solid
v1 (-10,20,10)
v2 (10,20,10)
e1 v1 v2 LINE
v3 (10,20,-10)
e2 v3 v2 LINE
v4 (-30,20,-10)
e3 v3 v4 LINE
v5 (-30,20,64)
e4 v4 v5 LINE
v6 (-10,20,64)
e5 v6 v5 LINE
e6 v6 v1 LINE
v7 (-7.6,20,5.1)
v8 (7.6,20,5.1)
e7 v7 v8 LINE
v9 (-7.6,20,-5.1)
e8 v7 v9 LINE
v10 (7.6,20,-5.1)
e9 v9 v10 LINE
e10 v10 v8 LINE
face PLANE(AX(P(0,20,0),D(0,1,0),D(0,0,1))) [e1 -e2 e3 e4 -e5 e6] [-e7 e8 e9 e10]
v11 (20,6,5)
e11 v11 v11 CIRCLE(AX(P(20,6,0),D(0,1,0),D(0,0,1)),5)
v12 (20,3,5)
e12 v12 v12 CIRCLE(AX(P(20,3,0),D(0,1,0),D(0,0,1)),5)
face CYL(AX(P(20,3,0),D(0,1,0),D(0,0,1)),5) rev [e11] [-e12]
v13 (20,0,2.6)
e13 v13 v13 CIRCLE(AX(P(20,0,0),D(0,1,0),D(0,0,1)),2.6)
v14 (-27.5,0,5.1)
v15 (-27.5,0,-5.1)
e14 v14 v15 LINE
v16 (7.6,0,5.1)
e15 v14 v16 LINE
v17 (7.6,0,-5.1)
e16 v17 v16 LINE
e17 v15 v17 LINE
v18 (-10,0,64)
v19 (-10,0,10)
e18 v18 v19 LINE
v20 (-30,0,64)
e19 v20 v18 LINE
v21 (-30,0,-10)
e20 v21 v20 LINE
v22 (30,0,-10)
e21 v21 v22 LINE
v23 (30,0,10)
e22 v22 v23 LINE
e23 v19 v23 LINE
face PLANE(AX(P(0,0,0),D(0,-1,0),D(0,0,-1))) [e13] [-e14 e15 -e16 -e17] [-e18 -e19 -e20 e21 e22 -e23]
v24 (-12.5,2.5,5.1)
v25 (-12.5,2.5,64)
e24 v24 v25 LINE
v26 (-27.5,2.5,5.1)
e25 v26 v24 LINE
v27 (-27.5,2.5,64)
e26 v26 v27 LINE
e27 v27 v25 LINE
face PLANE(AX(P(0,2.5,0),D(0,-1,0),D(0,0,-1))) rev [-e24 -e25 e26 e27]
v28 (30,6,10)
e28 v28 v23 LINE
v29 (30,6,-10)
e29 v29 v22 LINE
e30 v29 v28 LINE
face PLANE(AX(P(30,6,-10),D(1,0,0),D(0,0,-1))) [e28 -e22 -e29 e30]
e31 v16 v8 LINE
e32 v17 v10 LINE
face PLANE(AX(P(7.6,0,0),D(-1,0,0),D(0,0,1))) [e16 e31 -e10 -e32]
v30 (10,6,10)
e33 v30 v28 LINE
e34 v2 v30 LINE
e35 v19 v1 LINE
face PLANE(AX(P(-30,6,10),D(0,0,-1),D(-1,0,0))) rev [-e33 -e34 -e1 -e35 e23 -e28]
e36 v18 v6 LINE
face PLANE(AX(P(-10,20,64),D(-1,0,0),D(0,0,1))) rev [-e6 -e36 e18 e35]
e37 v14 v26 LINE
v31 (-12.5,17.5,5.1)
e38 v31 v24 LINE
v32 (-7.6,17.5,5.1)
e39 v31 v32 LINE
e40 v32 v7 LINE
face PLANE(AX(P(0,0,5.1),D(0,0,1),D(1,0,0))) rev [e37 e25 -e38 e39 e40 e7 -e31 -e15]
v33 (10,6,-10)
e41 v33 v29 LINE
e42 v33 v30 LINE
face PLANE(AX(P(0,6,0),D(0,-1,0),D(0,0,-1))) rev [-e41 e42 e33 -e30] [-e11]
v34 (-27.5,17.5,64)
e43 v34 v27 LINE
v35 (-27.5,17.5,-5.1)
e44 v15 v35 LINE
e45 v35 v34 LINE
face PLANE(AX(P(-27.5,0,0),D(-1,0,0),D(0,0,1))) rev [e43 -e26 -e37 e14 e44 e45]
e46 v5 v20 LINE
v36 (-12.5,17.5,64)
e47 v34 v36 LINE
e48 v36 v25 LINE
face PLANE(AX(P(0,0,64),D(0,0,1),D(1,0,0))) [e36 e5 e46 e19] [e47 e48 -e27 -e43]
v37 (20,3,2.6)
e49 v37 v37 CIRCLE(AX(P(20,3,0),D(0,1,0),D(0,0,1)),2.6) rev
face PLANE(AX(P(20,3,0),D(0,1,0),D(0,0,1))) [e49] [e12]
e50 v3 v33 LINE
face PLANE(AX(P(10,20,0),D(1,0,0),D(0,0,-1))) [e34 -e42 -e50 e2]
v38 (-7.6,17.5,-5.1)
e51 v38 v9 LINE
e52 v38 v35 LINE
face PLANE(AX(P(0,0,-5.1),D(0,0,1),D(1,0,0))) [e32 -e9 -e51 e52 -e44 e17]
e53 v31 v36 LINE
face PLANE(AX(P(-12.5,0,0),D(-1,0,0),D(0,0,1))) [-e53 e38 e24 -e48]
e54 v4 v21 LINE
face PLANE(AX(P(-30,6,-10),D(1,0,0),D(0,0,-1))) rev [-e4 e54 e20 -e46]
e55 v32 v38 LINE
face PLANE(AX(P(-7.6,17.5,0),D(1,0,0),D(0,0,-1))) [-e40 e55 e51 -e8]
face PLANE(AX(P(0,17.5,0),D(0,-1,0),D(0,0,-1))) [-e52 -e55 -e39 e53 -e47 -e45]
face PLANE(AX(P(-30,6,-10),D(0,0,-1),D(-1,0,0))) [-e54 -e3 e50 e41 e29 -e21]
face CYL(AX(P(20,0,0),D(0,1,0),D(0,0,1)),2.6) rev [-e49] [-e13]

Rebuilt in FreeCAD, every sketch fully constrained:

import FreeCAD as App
import Part
import Sketcher

V = App.Vector

doc = App.newDocument("Part")
body = doc.addObject("PartDesign::Body", "Body")

sketch1 = body.newObject("Sketcher::SketchObject", "Sketch")
sketch1.AttachmentSupport = (doc.getObject("XZ_Plane"), [""])
sketch1.MapMode = "FlatFace"
sketch1.addGeometry([
    Part.LineSegment(V(-30, -10, 0), V(-30, 10, 0)),
    Part.LineSegment(V(-30, 10, 0), V(30, 10, 0)),
    Part.LineSegment(V(30, 10, 0), V(30, -10, 0)),
    Part.LineSegment(V(30, -10, 0), V(-30, -10, 0)),
], False)
sketch1.addConstraint([
    Sketcher.Constraint("Coincident", 0, 2, 1, 1),
    Sketcher.Constraint("Coincident", 1, 2, 2, 1),
    Sketcher.Constraint("Coincident", 2, 2, 3, 1),
    Sketcher.Constraint("Coincident", 3, 2, 0, 1),
    Sketcher.Constraint("Vertical", 0),
    Sketcher.Constraint("Horizontal", 1),
    Sketcher.Constraint("Vertical", 2),
    Sketcher.Constraint("Horizontal", 3),
    Sketcher.Constraint("Symmetric", 0, 2, 2, 2, -1, 1),
    Sketcher.Constraint("DistanceX", 1, 1, 1, 2, 60.0),
    Sketcher.Constraint("DistanceY", 0, 1, 0, 2, 20.0),
])
pad1 = body.newObject("PartDesign::Pad", "Pad")
pad1.Profile = sketch1
pad1.Length = 6
pad1.Reversed = True

sketch2 = body.newObject("Sketcher::SketchObject", "Sketch001")
sketch2.AttachmentSupport = (doc.getObject("XZ_Plane"), [""])
sketch2.MapMode = "FlatFace"
sketch2.AttachmentOffset = App.Placement(V(0, 0, -6), App.Rotation())
sketch2.addGeometry(Part.Circle(V(20, 0, 0), V(0, 0, 1), 2.6), False)
sketch2.addConstraint([
    Sketcher.Constraint("PointOnObject", 0, 3, -1),
    Sketcher.Constraint("Diameter", 0, 5.2),
    Sketcher.Constraint("DistanceX", -1, 1, 0, 3, 20.0),
])
pocket1 = body.newObject("PartDesign::Pocket", "Pocket")
pocket1.Profile = sketch2
pocket1.Length = 6
pocket1.Reversed = True

sketch3 = body.newObject("Sketcher::SketchObject", "Sketch002")
sketch3.AttachmentSupport = (doc.getObject("XZ_Plane"), [""])
sketch3.MapMode = "FlatFace"
sketch3.AttachmentOffset = App.Placement(V(0, 0, -6), App.Rotation())
sketch3.addGeometry(Part.Circle(V(20, 0, 0), V(0, 0, 1), 5), False)
sketch3.addConstraint([
    Sketcher.Constraint("PointOnObject", 0, 3, -1),
    Sketcher.Constraint("Diameter", 0, 10.0),
    Sketcher.Constraint("DistanceX", -1, 1, 0, 3, 20.0),
])
pocket2 = body.newObject("PartDesign::Pocket", "Pocket001")
pocket2.Profile = sketch3
pocket2.Length = 3
pocket2.Reversed = True

sketch4 = body.newObject("Sketcher::SketchObject", "Sketch003")
sketch4.AttachmentSupport = (doc.getObject("XZ_Plane"), [""])
sketch4.MapMode = "FlatFace"
sketch4.AttachmentOffset = App.Placement(V(0, 0, -6), App.Rotation())
sketch4.addGeometry([
    Part.LineSegment(V(-10, 10, 0), V(10, 10, 0)),
    Part.LineSegment(V(10, 10, 0), V(10, -10, 0)),
    Part.LineSegment(V(10, -10, 0), V(-10, -10, 0)),
    Part.LineSegment(V(-10, -10, 0), V(-10, 10, 0)),
], False)
sketch4.addConstraint([
    Sketcher.Constraint("Coincident", 0, 2, 1, 1),
    Sketcher.Constraint("Coincident", 1, 2, 2, 1),
    Sketcher.Constraint("Coincident", 2, 2, 3, 1),
    Sketcher.Constraint("Coincident", 3, 2, 0, 1),
    Sketcher.Constraint("Horizontal", 0),
    Sketcher.Constraint("Vertical", 1),
    Sketcher.Constraint("Horizontal", 2),
    Sketcher.Constraint("Vertical", 3),
    Sketcher.Constraint("Symmetric", 0, 2, 2, 2, -1, 1),
    Sketcher.Constraint("Equal", 2, 1),
    Sketcher.Constraint("DistanceX", 0, 1, 0, 2, 20.0),
])
pad2 = body.newObject("PartDesign::Pad", "Pad001")
pad2.Profile = sketch4
pad2.Length = 14
pad2.Reversed = True

sketch5 = body.newObject("Sketcher::SketchObject", "Sketch004")
sketch5.AttachmentSupport = (doc.getObject("XZ_Plane"), [""])
sketch5.MapMode = "FlatFace"
sketch5.AttachmentOffset = App.Placement(V(0, 0, -20), App.Rotation())
sketch5.addGeometry([
    Part.LineSegment(V(8, -5, 0), V(-8, -5, 0)),
    Part.LineSegment(V(-8, -5, 0), V(-8, 5, 0)),
    Part.LineSegment(V(-8, 5, 0), V(8, 5, 0)),
    Part.LineSegment(V(8, 5, 0), V(8, -5, 0)),
], False)
sketch5.addConstraint([
    Sketcher.Constraint("Coincident", 0, 2, 1, 1),
    Sketcher.Constraint("Coincident", 1, 2, 2, 1),
    Sketcher.Constraint("Coincident", 2, 2, 3, 1),
    Sketcher.Constraint("Coincident", 3, 2, 0, 1),
    Sketcher.Constraint("Horizontal", 0),
    Sketcher.Constraint("Vertical", 1),
    Sketcher.Constraint("Horizontal", 2),
    Sketcher.Constraint("Vertical", 3),
    Sketcher.Constraint("Symmetric", 0, 2, 2, 2, -1, 1),
    Sketcher.Constraint("DistanceX", 0, 2, 0, 1, 15.2),
    Sketcher.Constraint("DistanceY", 1, 1, 1, 2, 10.2),
])
pocket3 = body.newObject("PartDesign::Pocket", "Pocket002")
pocket3.Profile = sketch5
pocket3.Length = 20
pocket3.Reversed = True

sketch6 = body.newObject("Sketcher::SketchObject", "Sketch005")
sketch6.AttachmentSupport = (doc.getObject("XZ_Plane"), [""])
sketch6.MapMode = "FlatFace"
sketch6.AttachmentOffset = App.Placement(V(0, 0, -6), App.Rotation())
sketch6.addGeometry([
    Part.LineSegment(V(-30, -10, 0), V(-30, 10, 0)),
    Part.LineSegment(V(-30, 10, 0), V(-10, 10, 0)),
    Part.LineSegment(V(-10, 10, 0), V(-10, -10, 0)),
    Part.LineSegment(V(-10, -10, 0), V(-30, -10, 0)),
], False)
sketch6.addConstraint([
    Sketcher.Constraint("Coincident", 0, 2, 1, 1),
    Sketcher.Constraint("Coincident", 1, 2, 2, 1),
    Sketcher.Constraint("Coincident", 2, 2, 3, 1),
    Sketcher.Constraint("Coincident", 3, 2, 0, 1),
    Sketcher.Constraint("Vertical", 0),
    Sketcher.Constraint("Horizontal", 1),
    Sketcher.Constraint("Vertical", 2),
    Sketcher.Constraint("Horizontal", 3),
    Sketcher.Constraint("Equal", 3, 0),
    Sketcher.Constraint("DistanceX", 1, 1, 1, 2, 20.0),
    Sketcher.Constraint("DistanceX", 0, 2, -1, 1, 30.0),
    Sketcher.Constraint("DistanceY", -1, 1, 0, 2, 10.0),
])
pad3 = body.newObject("PartDesign::Pad", "Pad002")
pad3.Profile = sketch6
pad3.Length = 14
pad3.Reversed = True

sketch7 = body.newObject("Sketcher::SketchObject", "Sketch006")
sketch7.AttachmentSupport = (doc.getObject("XY_Plane"), [""])
sketch7.MapMode = "FlatFace"
sketch7.AttachmentOffset = App.Placement(V(0, 0, 10), App.Rotation())
sketch7.addGeometry([
    Part.LineSegment(V(-30, 20, 0), V(-30, 0, 0)),
    Part.LineSegment(V(-30, 0, 0), V(-10, 0, 0)),
    Part.LineSegment(V(-10, 0, 0), V(-10, 20, 0)),
    Part.LineSegment(V(-10, 20, 0), V(-30, 20, 0)),
], False)
sketch7.addConstraint([
    Sketcher.Constraint("Coincident", 0, 2, 1, 1),
    Sketcher.Constraint("Coincident", 1, 2, 2, 1),
    Sketcher.Constraint("Coincident", 2, 2, 3, 1),
    Sketcher.Constraint("Coincident", 3, 2, 0, 1),
    Sketcher.Constraint("Vertical", 0),
    Sketcher.Constraint("Horizontal", 1),
    Sketcher.Constraint("Vertical", 2),
    Sketcher.Constraint("Horizontal", 3),
    Sketcher.Constraint("PointOnObject", 0, 2, -1),
    Sketcher.Constraint("Equal", 3, 0),
    Sketcher.Constraint("DistanceX", 1, 1, 1, 2, 20.0),
    Sketcher.Constraint("DistanceX", 0, 2, -1, 1, 30.0),
])
pad4 = body.newObject("PartDesign::Pad", "Pad003")
pad4.Profile = sketch7
pad4.Length = 54

sketch8 = body.newObject("Sketcher::SketchObject", "Sketch007")
sketch8.AttachmentSupport = (doc.getObject("XY_Plane"), [""])
sketch8.MapMode = "FlatFace"
sketch8.AttachmentOffset = App.Placement(V(0, 0, 64), App.Rotation())
sketch8.addGeometry([
    Part.LineSegment(V(-28, 18, 0), V(-28, 2, 0)),
    Part.LineSegment(V(-28, 2, 0), V(-12, 2, 0)),
    Part.LineSegment(V(-12, 2, 0), V(-12, 18, 0)),
    Part.LineSegment(V(-12, 18, 0), V(-28, 18, 0)),
], False)
sketch8.addConstraint([
    Sketcher.Constraint("Coincident", 0, 2, 1, 1),
    Sketcher.Constraint("Coincident", 1, 2, 2, 1),
    Sketcher.Constraint("Coincident", 2, 2, 3, 1),
    Sketcher.Constraint("Coincident", 3, 2, 0, 1),
    Sketcher.Constraint("Vertical", 0),
    Sketcher.Constraint("Horizontal", 1),
    Sketcher.Constraint("Vertical", 2),
    Sketcher.Constraint("Horizontal", 3),
    Sketcher.Constraint("Equal", 3, 0),
    Sketcher.Constraint("DistanceX", 1, 1, 1, 2, 15.0),
    Sketcher.Constraint("DistanceX", 0, 2, -1, 1, 27.5),
    Sketcher.Constraint("DistanceY", -1, 1, 0, 2, 2.5),
])
pocket4 = body.newObject("PartDesign::Pocket", "Pocket003")
pocket4.Profile = sketch8
pocket4.Length = 64

sketch9 = body.newObject("Sketcher::SketchObject", "Sketch008")
sketch9.AttachmentSupport = (doc.getObject("XZ_Plane"), [""])
sketch9.MapMode = "FlatFace"
sketch9.AttachmentOffset = App.Placement(V(0, 0, -20), App.Rotation())
sketch9.addGeometry([
    Part.LineSegment(V(-28, -5, 0), V(-28, 5, 0)),
    Part.LineSegment(V(-28, 5, 0), V(-8, 5, 0)),
    Part.LineSegment(V(-8, 5, 0), V(-8, -5, 0)),
    Part.LineSegment(V(-8, -5, 0), V(-28, -5, 0)),
], False)
sketch9.addConstraint([
    Sketcher.Constraint("Coincident", 0, 2, 1, 1),
    Sketcher.Constraint("Coincident", 1, 2, 2, 1),
    Sketcher.Constraint("Coincident", 2, 2, 3, 1),
    Sketcher.Constraint("Coincident", 3, 2, 0, 1),
    Sketcher.Constraint("Vertical", 0),
    Sketcher.Constraint("Horizontal", 1),
    Sketcher.Constraint("Vertical", 2),
    Sketcher.Constraint("Horizontal", 3),
    Sketcher.Constraint("DistanceX", 1, 1, 1, 2, 19.9),
    Sketcher.Constraint("DistanceY", 0, 1, 0, 2, 10.2),
    Sketcher.Constraint("DistanceX", 0, 2, -1, 1, 27.5),
    Sketcher.Constraint("DistanceY", -1, 1, 0, 2, 5.1),
])
pocket5 = body.newObject("PartDesign::Pocket", "Pocket004")
pocket5.Profile = sketch9
pocket5.Length = 17.5
pocket5.Reversed = True

sketch10 = body.newObject("Sketcher::SketchObject", "Sketch009")
sketch10.AttachmentSupport = (doc.getObject("XZ_Plane"), [""])
sketch10.MapMode = "FlatFace"
sketch10.AttachmentOffset = App.Placement(V(0, 0, -2.5), App.Rotation())
sketch10.addGeometry([
    Part.LineSegment(V(-28, -5, 0), V(-28, 5, 0)),
    Part.LineSegment(V(-28, 5, 0), V(-8, 5, 0)),
    Part.LineSegment(V(-8, 5, 0), V(-8, -5, 0)),
    Part.LineSegment(V(-8, -5, 0), V(-28, -5, 0)),
], False)
sketch10.addConstraint([
    Sketcher.Constraint("Coincident", 0, 2, 1, 1),
    Sketcher.Constraint("Coincident", 1, 2, 2, 1),
    Sketcher.Constraint("Coincident", 2, 2, 3, 1),
    Sketcher.Constraint("Coincident", 3, 2, 0, 1),
    Sketcher.Constraint("Vertical", 0),
    Sketcher.Constraint("Horizontal", 1),
    Sketcher.Constraint("Vertical", 2),
    Sketcher.Constraint("Horizontal", 3),
    Sketcher.Constraint("DistanceX", 1, 1, 1, 2, 19.9),
    Sketcher.Constraint("DistanceY", 0, 1, 0, 2, 10.2),
    Sketcher.Constraint("DistanceX", 0, 2, -1, 1, 27.5),
    Sketcher.Constraint("DistanceY", -1, 1, 0, 2, 5.1),
])
pocket6 = body.newObject("PartDesign::Pocket", "Pocket005")
pocket6.Profile = sketch10
pocket6.Length = 15
pocket6.Reversed = True

sketch11 = body.newObject("Sketcher::SketchObject", "Sketch010")
sketch11.AttachmentSupport = (doc.getObject("XZ_Plane"), [""])
sketch11.MapMode = "FlatFace"
sketch11.AttachmentOffset = App.Placement(V(0, 0, -20), App.Rotation())
sketch11.addGeometry([
    Part.LineSegment(V(-28, -5, 0), V(-28, 5, 0)),
    Part.LineSegment(V(-28, 5, 0), V(8, 5, 0)),
    Part.LineSegment(V(8, 5, 0), V(8, -5, 0)),
    Part.LineSegment(V(8, -5, 0), V(-28, -5, 0)),
], False)
sketch11.addConstraint([
    Sketcher.Constraint("Coincident", 0, 2, 1, 1),
    Sketcher.Constraint("Coincident", 1, 2, 2, 1),
    Sketcher.Constraint("Coincident", 2, 2, 3, 1),
    Sketcher.Constraint("Coincident", 3, 2, 0, 1),
    Sketcher.Constraint("Vertical", 0),
    Sketcher.Constraint("Horizontal", 1),
    Sketcher.Constraint("Vertical", 2),
    Sketcher.Constraint("Horizontal", 3),
    Sketcher.Constraint("DistanceX", 1, 1, 1, 2, 35.1),
    Sketcher.Constraint("DistanceY", 0, 1, 0, 2, 10.2),
    Sketcher.Constraint("DistanceX", 0, 2, -1, 1, 27.5),
    Sketcher.Constraint("DistanceY", -1, 1, 0, 2, 5.1),
])
pad5 = body.newObject("PartDesign::Pad", "Pad004")
pad5.Profile = sketch11
pad5.Length = 2.5

sketch12 = body.newObject("Sketcher::SketchObject", "Sketch011")
sketch12.AttachmentSupport = (doc.getObject("XZ_Plane"), [""])
sketch12.MapMode = "FlatFace"
sketch12.AttachmentOffset = App.Placement(V(0, 0, -20), App.Rotation())
sketch12.addGeometry([
    Part.LineSegment(V(8, -5, 0), V(-8, -5, 0)),
    Part.LineSegment(V(-8, -5, 0), V(-8, 5, 0)),
    Part.LineSegment(V(-8, 5, 0), V(8, 5, 0)),
    Part.LineSegment(V(8, 5, 0), V(8, -5, 0)),
], False)
sketch12.addConstraint([
    Sketcher.Constraint("Coincident", 0, 2, 1, 1),
    Sketcher.Constraint("Coincident", 1, 2, 2, 1),
    Sketcher.Constraint("Coincident", 2, 2, 3, 1),
    Sketcher.Constraint("Coincident", 3, 2, 0, 1),
    Sketcher.Constraint("Horizontal", 0),
    Sketcher.Constraint("Vertical", 1),
    Sketcher.Constraint("Horizontal", 2),
    Sketcher.Constraint("Vertical", 3),
    Sketcher.Constraint("Symmetric", 0, 2, 2, 2, -1, 1),
    Sketcher.Constraint("DistanceX", 0, 2, 0, 1, 15.2),
    Sketcher.Constraint("DistanceY", 1, 1, 1, 2, 10.2),
])
pocket7 = body.newObject("PartDesign::Pocket", "Pocket006")
pocket7.Profile = sketch12
pocket7.Length = 2.5
pocket7.Reversed = True

doc.recompute()
